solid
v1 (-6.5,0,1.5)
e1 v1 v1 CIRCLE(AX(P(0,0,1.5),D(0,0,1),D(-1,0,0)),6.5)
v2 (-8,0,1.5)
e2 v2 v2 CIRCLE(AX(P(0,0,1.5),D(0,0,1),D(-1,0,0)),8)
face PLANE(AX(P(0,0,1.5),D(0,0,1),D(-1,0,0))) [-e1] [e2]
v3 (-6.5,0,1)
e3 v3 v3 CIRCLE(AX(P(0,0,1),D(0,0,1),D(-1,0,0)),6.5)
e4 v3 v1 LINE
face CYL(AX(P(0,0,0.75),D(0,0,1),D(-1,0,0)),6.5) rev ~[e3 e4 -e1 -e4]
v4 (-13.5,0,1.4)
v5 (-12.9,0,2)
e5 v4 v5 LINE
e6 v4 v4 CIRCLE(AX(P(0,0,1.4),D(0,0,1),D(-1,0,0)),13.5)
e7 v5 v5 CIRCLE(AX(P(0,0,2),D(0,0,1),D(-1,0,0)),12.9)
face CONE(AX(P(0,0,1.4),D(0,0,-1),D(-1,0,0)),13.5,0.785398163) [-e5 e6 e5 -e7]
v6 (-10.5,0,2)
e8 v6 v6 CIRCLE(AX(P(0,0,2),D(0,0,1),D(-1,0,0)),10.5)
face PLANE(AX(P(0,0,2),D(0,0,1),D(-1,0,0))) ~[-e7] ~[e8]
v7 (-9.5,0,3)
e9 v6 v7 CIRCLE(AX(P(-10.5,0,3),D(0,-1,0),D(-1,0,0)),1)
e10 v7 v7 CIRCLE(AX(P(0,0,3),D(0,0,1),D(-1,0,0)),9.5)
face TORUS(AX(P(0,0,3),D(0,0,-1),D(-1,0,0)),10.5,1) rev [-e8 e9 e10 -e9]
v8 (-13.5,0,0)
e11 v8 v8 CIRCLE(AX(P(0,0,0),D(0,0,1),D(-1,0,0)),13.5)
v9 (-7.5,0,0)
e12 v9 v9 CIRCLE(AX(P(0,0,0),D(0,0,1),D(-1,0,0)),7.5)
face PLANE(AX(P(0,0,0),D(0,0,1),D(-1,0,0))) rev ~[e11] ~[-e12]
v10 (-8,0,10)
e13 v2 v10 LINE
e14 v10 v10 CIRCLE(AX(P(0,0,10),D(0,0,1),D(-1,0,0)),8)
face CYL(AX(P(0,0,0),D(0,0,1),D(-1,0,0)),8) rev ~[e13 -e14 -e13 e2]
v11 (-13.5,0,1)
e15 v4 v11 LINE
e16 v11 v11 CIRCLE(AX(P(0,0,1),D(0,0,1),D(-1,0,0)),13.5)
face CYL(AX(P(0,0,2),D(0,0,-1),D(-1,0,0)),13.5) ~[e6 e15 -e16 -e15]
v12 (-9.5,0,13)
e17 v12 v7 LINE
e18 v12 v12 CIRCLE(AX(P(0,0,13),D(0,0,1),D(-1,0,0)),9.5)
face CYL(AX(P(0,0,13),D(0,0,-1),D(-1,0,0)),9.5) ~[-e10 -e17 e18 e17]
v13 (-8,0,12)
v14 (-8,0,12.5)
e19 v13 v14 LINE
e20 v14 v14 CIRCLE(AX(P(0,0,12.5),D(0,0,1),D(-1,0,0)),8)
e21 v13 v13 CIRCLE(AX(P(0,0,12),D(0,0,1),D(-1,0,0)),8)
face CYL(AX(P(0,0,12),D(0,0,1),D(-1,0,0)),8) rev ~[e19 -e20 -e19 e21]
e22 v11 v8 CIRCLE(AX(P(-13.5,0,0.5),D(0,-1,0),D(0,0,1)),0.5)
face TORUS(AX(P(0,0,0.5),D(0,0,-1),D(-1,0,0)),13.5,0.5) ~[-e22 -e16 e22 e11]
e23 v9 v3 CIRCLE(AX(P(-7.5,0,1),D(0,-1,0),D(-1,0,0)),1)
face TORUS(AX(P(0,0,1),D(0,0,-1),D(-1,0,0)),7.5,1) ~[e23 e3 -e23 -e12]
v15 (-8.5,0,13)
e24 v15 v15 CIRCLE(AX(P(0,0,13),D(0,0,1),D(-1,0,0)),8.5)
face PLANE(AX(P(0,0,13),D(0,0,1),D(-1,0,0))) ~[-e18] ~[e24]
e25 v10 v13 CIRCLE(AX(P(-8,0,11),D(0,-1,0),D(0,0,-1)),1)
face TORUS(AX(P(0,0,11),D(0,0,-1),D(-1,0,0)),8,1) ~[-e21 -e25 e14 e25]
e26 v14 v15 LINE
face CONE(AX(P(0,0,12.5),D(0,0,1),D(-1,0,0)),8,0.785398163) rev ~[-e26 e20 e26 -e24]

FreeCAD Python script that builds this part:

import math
import FreeCAD as App
import Part
import Sketcher

V = App.Vector
Q = App.Units.Quantity


def edges_at(feature, points):
    """Names of the edges that pass closest to the given points."""
    edges = feature.Shape.Edges
    near = lambda p: min(range(len(edges)), key=lambda i: edges[i].distToShape(Part.Vertex(*p))[0])
    return sorted({f"Edge{near(p) + 1}" for p in points})

doc = App.newDocument("Part")
params = doc.addObject("Spreadsheet::Sheet", "Params")
for row, (alias, value) in enumerate([
    ("sketch1_radius", "1 mm"),
    ("sketch1_width", "1 mm"),
    ("sketch1_width2", "4 mm"),
    ("sketch1_height", "2 mm"),
    ("sketch1_height2", "10 mm"),
    ("revolution_angle", "360 deg"),
    ("sketch2_radius", "0.5 mm"),
    ("revolution2_angle", "360 deg"),
    ("chamfer_size", "0.6 mm"),
    ("sketch3_width", "1.5 mm"),
    ("revolution3_angle", "360 deg"),
    ("fillet_radius", "1 mm"),
], start=1):
    params.set(f"A{row}", alias)
    params.set(f"B{row}", "=" + value)
    params.setAlias(f"B{row}", alias)

body = doc.addObject("PartDesign::Body", "Body")

# Sketch on XZ plane
sketch1 = body.newObject("Sketcher::SketchObject", "Sketch")
sketch1.AttachmentSupport = (doc.getObject("XZ_Plane"), [""])
sketch1.MapMode = "FlatFace"
sketch1.addGeometry([
    Part.LineSegment(V(-13.5, 2, 0), V(-13.5, 0, 0)),  # 0
    Part.LineSegment(V(-13.5, 0, 0), V(-8, 0, 0)),  # 1
    Part.LineSegment(V(-8, 0, 0), V(-8, 10, 0)),  # 2
    Part.ArcOfCircle(Part.Circle(V(-8, 11, 0), V(0, 0, 1), 1), math.radians(-90), math.radians(90)),  # 3
    Part.LineSegment(V(-8, 12, 0), V(-8, 12.5, 0)),  # 4
    Part.LineSegment(V(-8, 12.5, 0), V(-8.5, 13, 0)),  # 5
    Part.LineSegment(V(-8.5, 13, 0), V(-9.5, 13, 0)),  # 6
    Part.LineSegment(V(-9.5, 13, 0), V(-9.5, 2, 0)),  # 7
    Part.LineSegment(V(-9.5, 2, 0), V(-13.5, 2, 0)),  # 8
], False)
sketch1.addConstraint([
    Sketcher.Constraint("Coincident", 0, 2, 1, 1),
    Sketcher.Constraint("Coincident", 1, 2, 2, 1),
    Sketcher.Constraint("Coincident", 2, 2, 3, 1),
    Sketcher.Constraint("Coincident", 3, 2, 4, 1),
    Sketcher.Constraint("Coincident", 4, 2, 5, 1),
    Sketcher.Constraint("Coincident", 5, 2, 6, 1),
    Sketcher.Constraint("Coincident", 6, 2, 7, 1),
    Sketcher.Constraint("Coincident", 7, 2, 8, 1),
    Sketcher.Constraint("Coincident", 8, 2, 0, 1),
    Sketcher.Constraint("Vertical", 0),
    Sketcher.Constraint("Horizontal", 1),
    Sketcher.Constraint("Vertical", 2),
    Sketcher.Constraint("Vertical", 4),
    Sketcher.Constraint("Horizontal", 6),
    Sketcher.Constraint("Vertical", 7),
    Sketcher.Constraint("Horizontal", 8),
    Sketcher.Constraint("PointOnObject", 0, 2, -1),
    Sketcher.Constraint("Vertical", 3, 3, 1, 2),
    Sketcher.Constraint("Vertical", 2, 2, 3, 2),
    Sketcher.Constraint("Radius", 3, Q("1 mm")),
    Sketcher.Constraint("DistanceX", 6, 2, 6, 1, Q("1 mm")),
    Sketcher.Constraint("DistanceX", 8, 2, 8, 1, Q("4 mm")),
    Sketcher.Constraint("DistanceY", 0, 2, 0, 1, Q("2 mm")),
    Sketcher.Constraint("DistanceY", 2, 1, 2, 2, Q("10 mm")),
    Sketcher.Constraint("DistanceY", 7, 2, 7, 1, Q("11 mm")),
    Sketcher.Constraint("Angle", 5, Q("135 deg")),
    Sketcher.Constraint("DistanceX", 1, 1, 1, 2, Q("5.5 mm")),
    Sketcher.Constraint("DistanceX", 3, 3, -1, 1, Q("8 mm")),
])
sketch1.setExpression("Constraints[19]", "Params.sketch1_radius")
sketch1.setExpression("Constraints[20]", "Params.sketch1_width")
sketch1.setExpression("Constraints[21]", "Params.sketch1_width2")
sketch1.setExpression("Constraints[22]", "Params.sketch1_height")
sketch1.setExpression("Constraints[23]", "Params.sketch1_height2")
revolution = body.newObject("PartDesign::Revolution", "Revolution")
revolution.Profile = sketch1
revolution.ReferenceAxis = (sketch1, ["V_Axis"])
revolution.setExpression("Angle", "Params.revolution_angle")

# Sketch on XZ plane
sketch2 = body.newObject("Sketcher::SketchObject", "Sketch001")
sketch2.AttachmentSupport = (doc.getObject("XZ_Plane"), [""])
sketch2.MapMode = "FlatFace"
sketch2.addGeometry([
    Part.ArcOfCircle(Part.Circle(V(-13.5, 0.5, 0), V(0, 0, 1), 0.5), math.radians(90), math.radians(270)),
    Part.LineSegment(V(-13.5, 0, 0), V(-13.5, 1, 0)),
], False)
sketch2.addConstraint([
    Sketcher.Constraint("Coincident", 0, 1, 1, 2),
    Sketcher.Constraint("Coincident", 1, 1, 0, 2),
    Sketcher.Constraint("Vertical", 1),
    Sketcher.Constraint("PointOnObject", 1, 1, -1),
    Sketcher.Constraint("Radius", 0, Q("0.5 mm")),
    Sketcher.Constraint("DistanceX", 0, 3, -1, 1, Q("13.5 mm")),
    Sketcher.Constraint("DistanceX", 0, 1, -1, 1, Q("13.5 mm")),
])
sketch2.setExpression("Constraints[4]", "Params.sketch2_radius")
revolution2 = body.newObject("PartDesign::Revolution", "Revolution001")
revolution2.Profile = sketch2
revolution2.ReferenceAxis = (sketch2, ["V_Axis"])
revolution2.setExpression("Angle", "Params.revolution2_angle")
doc.recompute()

chamfer = body.newObject("PartDesign::Chamfer", "Chamfer")
chamfer.Base = (revolution2, edges_at(revolution2, [(13.5, 0, 2)]))
chamfer.setExpression("Size", "Params.chamfer_size")

# Sketch on XZ plane
sketch3 = body.newObject("Sketcher::SketchObject", "Sketch002")
sketch3.AttachmentSupport = (doc.getObject("XZ_Plane"), [""])
sketch3.MapMode = "FlatFace"
sketch3.addGeometry([
    Part.LineSegment(V(-8, 1.5, 0), V(-8, 0, 0)),
    Part.LineSegment(V(-8, 0, 0), V(-6.5, 0, 0)),
    Part.LineSegment(V(-6.5, 0, 0), V(-6.5, 1.5, 0)),
    Part.LineSegment(V(-6.5, 1.5, 0), V(-8, 1.5, 0)),
], False)
sketch3.addConstraint([
    Sketcher.Constraint("Coincident", 0, 2, 1, 1),
    Sketcher.Constraint("Coincident", 1, 2, 2, 1),
    Sketcher.Constraint("Coincident", 2, 2, 3, 1),
    Sketcher.Constraint("Coincident", 3, 2, 0, 1),
    Sketcher.Constraint("Vertical", 0),
    Sketcher.Constraint("Horizontal", 1),
    Sketcher.Constraint("Vertical", 2),
    Sketcher.Constraint("Horizontal", 3),
    Sketcher.Constraint("PointOnObject", 0, 2, -1),
    Sketcher.Constraint("Equal", 3, 0),
    Sketcher.Constraint("DistanceX", 1, 1, 1, 2, Q("1.5 mm")),
    Sketcher.Constraint("DistanceX", 0, 2, -1, 1, Q("8 mm")),
])
sketch3.setExpression("Constraints[10]", "Params.sketch3_width")
revolution3 = body.newObject("PartDesign::Revolution", "Revolution002")
revolution3.Profile = sketch3
revolution3.ReferenceAxis = (sketch3, ["V_Axis"])
revolution3.setExpression("Angle", "Params.revolution3_angle")
doc.recompute()

fillet = body.newObject("PartDesign::Fillet", "Fillet")
fillet.Base = (revolution3, edges_at(revolution3, [(9.5, 0, 2), (6.5, 0, 0)]))
fillet.setExpression("Radius", "Params.fillet_radius")

doc.recompute()
